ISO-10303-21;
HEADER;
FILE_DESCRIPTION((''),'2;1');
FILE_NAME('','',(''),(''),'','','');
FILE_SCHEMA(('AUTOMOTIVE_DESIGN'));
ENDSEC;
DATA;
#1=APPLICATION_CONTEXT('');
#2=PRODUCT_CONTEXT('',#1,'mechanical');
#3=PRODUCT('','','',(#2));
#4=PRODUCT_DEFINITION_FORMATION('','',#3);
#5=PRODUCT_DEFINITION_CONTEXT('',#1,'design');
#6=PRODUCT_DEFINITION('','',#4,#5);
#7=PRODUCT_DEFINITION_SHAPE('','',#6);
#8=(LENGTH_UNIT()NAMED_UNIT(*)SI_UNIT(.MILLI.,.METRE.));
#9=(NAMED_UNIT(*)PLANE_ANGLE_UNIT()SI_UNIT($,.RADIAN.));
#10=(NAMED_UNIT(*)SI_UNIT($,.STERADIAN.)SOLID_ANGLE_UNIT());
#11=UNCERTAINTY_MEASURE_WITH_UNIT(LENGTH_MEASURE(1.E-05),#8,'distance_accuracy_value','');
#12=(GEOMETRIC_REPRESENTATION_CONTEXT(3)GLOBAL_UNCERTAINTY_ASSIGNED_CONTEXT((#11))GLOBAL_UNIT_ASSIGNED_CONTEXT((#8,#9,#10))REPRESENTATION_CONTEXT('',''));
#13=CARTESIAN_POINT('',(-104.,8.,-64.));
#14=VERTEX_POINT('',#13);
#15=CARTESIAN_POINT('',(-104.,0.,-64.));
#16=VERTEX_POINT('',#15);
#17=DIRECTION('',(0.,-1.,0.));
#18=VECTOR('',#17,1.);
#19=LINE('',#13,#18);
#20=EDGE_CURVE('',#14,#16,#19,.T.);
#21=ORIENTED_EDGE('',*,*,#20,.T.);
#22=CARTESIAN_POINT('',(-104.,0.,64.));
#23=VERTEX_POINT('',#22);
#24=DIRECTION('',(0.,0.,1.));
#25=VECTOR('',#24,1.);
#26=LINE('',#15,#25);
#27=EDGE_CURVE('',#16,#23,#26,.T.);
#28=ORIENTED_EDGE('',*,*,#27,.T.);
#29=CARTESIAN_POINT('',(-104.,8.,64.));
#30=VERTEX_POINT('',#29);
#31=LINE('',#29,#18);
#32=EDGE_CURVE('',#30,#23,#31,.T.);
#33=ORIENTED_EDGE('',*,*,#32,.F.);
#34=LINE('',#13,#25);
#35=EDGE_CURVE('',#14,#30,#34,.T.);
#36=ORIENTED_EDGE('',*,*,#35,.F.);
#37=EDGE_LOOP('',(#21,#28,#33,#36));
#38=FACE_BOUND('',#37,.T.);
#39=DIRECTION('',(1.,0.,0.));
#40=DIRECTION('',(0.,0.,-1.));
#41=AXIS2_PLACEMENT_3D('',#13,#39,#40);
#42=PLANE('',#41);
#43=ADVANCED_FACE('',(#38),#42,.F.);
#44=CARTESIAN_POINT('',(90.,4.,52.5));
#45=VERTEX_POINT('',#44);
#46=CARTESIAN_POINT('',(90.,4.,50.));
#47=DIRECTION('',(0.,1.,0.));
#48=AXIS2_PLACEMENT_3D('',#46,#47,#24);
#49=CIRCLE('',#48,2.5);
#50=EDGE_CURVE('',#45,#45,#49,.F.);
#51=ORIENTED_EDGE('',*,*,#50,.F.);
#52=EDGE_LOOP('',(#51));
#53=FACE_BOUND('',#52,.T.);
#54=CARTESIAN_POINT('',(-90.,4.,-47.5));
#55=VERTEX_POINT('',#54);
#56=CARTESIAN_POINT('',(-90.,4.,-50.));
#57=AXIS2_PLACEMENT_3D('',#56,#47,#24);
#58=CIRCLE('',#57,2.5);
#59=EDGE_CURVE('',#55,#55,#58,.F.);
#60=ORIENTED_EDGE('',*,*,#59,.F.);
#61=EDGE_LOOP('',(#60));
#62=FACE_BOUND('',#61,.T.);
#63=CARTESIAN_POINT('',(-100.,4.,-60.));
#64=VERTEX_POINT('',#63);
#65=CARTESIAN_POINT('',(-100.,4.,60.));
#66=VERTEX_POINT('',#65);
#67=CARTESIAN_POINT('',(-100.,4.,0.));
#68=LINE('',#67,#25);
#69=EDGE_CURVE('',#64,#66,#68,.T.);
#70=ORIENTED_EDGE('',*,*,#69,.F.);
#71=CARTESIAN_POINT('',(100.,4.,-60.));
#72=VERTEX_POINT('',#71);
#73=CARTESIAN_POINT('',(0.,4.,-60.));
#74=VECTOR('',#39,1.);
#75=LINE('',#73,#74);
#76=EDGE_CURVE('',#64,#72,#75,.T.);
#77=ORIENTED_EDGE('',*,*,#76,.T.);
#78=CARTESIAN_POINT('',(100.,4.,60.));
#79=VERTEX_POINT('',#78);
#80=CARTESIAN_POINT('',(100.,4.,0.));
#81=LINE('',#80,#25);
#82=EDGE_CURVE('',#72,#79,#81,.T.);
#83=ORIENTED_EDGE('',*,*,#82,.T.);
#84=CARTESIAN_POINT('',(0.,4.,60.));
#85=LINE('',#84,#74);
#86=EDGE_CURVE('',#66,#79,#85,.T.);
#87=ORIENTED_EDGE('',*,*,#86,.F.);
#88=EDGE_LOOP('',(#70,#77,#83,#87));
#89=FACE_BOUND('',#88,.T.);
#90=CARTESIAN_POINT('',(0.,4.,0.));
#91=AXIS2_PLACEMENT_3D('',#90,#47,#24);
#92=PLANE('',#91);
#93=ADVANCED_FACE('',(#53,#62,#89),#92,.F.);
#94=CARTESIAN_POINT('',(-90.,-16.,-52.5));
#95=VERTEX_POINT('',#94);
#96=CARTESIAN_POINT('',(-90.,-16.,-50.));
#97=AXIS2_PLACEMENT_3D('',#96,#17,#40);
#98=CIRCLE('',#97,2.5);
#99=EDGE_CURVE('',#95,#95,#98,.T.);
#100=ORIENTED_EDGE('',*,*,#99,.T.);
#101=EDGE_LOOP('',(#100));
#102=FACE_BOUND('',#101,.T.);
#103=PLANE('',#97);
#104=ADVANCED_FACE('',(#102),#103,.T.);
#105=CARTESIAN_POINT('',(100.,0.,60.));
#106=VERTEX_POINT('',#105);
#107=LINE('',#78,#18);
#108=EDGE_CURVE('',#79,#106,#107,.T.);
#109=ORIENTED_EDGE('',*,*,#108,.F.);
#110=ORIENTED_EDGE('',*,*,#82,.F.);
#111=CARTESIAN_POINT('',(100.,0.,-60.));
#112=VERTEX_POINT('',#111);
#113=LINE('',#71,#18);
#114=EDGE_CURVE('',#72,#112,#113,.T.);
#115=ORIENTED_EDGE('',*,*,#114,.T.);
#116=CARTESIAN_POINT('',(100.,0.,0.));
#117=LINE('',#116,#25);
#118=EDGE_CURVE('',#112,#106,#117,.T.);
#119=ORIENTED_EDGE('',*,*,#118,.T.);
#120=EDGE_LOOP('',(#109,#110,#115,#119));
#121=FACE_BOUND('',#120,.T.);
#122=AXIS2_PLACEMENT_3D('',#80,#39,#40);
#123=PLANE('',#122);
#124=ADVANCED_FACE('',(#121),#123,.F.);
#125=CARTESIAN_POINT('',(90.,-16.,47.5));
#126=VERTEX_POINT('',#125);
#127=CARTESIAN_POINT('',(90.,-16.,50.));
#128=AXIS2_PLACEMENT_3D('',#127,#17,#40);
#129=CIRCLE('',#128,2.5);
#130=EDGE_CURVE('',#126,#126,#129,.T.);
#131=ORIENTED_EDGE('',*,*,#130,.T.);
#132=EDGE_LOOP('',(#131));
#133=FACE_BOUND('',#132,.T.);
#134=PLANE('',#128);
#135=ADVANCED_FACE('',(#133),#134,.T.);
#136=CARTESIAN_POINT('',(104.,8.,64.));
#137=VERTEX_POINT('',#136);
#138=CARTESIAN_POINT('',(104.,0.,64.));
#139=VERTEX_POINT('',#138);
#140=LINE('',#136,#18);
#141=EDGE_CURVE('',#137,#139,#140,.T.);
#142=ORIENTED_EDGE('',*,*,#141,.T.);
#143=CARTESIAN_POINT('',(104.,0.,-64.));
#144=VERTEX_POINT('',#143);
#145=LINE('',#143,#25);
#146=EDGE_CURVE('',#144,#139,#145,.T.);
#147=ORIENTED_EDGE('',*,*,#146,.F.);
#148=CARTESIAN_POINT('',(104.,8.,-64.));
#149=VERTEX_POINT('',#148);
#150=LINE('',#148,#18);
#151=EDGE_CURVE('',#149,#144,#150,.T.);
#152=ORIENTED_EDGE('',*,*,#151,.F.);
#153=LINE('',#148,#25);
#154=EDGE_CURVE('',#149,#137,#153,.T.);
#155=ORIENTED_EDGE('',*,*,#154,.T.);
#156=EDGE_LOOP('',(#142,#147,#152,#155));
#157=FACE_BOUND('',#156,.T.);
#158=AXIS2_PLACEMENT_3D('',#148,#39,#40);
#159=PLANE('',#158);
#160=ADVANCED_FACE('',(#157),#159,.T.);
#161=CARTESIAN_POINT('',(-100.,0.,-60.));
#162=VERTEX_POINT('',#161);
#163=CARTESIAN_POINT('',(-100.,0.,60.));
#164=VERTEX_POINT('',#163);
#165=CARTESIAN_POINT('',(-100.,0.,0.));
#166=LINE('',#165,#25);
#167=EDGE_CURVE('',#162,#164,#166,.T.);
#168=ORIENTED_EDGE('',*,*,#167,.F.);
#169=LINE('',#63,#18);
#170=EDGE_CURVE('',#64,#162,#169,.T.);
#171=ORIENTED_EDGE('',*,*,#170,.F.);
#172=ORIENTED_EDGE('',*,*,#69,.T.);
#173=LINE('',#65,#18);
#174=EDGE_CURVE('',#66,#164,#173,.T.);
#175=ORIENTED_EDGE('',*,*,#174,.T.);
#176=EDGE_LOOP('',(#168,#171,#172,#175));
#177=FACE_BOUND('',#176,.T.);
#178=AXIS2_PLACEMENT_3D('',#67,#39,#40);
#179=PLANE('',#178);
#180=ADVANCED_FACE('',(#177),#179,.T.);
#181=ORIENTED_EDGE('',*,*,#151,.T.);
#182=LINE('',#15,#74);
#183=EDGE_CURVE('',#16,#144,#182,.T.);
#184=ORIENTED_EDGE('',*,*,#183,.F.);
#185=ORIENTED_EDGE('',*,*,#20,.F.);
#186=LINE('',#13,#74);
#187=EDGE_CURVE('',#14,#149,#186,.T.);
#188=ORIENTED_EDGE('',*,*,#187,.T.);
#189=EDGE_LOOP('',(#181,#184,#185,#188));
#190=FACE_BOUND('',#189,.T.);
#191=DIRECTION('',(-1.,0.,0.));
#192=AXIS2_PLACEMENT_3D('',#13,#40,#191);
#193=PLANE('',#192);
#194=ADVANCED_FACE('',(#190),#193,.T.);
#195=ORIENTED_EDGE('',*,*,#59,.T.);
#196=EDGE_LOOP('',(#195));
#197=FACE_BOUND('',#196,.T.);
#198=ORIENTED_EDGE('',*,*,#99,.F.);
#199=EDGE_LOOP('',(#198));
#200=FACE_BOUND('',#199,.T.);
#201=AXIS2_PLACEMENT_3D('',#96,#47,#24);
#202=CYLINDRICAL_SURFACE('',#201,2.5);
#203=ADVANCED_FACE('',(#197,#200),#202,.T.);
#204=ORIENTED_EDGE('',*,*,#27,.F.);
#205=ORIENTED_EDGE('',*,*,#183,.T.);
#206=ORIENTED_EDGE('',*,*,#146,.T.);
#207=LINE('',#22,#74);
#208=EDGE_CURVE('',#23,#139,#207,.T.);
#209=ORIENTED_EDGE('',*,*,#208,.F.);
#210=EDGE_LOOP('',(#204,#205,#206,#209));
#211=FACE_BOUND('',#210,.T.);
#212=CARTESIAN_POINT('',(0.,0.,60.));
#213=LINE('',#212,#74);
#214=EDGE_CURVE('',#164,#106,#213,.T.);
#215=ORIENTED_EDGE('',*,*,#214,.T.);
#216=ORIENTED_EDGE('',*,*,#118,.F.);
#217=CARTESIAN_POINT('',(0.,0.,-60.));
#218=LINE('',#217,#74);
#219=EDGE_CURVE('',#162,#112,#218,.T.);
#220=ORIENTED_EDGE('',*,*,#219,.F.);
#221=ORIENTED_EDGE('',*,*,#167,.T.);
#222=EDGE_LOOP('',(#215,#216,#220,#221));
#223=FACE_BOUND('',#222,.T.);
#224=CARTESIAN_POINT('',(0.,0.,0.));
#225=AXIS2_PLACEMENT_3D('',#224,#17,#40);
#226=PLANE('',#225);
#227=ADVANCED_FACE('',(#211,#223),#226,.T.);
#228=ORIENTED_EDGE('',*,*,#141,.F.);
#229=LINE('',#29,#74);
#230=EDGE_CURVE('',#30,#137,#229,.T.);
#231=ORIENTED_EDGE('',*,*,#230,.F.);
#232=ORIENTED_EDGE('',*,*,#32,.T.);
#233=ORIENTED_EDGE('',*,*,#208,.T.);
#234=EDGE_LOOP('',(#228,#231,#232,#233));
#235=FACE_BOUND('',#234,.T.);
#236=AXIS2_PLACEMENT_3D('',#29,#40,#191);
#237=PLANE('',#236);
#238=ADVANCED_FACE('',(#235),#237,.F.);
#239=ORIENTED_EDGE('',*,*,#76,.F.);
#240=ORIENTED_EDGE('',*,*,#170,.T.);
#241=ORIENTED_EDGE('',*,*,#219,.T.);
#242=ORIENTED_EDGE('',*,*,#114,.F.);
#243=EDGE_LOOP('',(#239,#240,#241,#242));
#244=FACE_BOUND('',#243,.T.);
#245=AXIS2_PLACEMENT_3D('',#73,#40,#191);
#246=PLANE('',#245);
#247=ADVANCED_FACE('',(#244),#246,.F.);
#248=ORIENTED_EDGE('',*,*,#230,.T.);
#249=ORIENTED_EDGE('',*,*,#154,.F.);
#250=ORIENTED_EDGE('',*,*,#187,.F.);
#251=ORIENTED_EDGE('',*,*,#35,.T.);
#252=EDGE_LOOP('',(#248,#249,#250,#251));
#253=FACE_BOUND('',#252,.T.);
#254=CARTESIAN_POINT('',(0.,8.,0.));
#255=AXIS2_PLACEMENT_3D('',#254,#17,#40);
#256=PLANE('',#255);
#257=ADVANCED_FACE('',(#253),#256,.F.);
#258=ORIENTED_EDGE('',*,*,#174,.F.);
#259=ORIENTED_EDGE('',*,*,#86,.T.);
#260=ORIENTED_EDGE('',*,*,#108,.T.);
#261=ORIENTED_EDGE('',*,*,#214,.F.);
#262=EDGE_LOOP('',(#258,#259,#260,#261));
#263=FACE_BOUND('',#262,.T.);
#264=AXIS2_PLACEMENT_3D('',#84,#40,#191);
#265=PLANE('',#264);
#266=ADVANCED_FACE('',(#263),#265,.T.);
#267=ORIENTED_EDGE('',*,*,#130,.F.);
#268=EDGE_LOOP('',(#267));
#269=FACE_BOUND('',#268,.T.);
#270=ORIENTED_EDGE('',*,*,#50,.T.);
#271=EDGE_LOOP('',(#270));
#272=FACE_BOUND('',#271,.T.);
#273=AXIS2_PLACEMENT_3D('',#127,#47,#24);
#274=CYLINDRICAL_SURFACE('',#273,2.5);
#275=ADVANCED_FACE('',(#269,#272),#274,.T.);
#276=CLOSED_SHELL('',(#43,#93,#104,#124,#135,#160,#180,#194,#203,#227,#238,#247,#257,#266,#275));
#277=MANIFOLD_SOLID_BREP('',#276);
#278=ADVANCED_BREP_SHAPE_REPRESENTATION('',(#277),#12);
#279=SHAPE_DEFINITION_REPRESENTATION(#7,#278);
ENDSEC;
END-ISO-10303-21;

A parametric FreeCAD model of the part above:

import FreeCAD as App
import Part
import Sketcher
Q = App.Units.Quantity


def add_polygon(sketch, points):
    """Adds a closed chain of lines whose ends are joined by coincident constraints."""
    first, n = sketch.GeometryCount, len(points)
    for a, b in zip(points, points[1:] + points[:1]):
        sketch.addGeometry(Part.LineSegment(App.Vector(*a, 0), App.Vector(*b, 0)), False)
    for i in range(n):
        sketch.addConstraint(Sketcher.Constraint("Coincident", first + i, 2, first + (i + 1) % n, 1))

doc = App.newDocument("Part")
body = doc.addObject("PartDesign::Body", "Body")

sketch1 = doc.addObject("Sketcher::SketchObject", "Sketch")
body.addObject(sketch1)
sketch1.AttachmentSupport = (doc.XZ_Plane, [""])
sketch1.MapMode = "FlatFace"
add_polygon(sketch1, [(-104, -64), (-104, 64), (104, 64), (104, -64)])
sketch1.addConstraint([
    Sketcher.Constraint("Vertical", 0),
    Sketcher.Constraint("Horizontal", 1),
    Sketcher.Constraint("Vertical", 2),
    Sketcher.Constraint("Horizontal", 3),
    Sketcher.Constraint("Symmetric", 0, 2, 2, 2, -1, 1),
    Sketcher.Constraint("DistanceX", 1, 1, 1, 2, Q("208 mm")),
    Sketcher.Constraint("DistanceY", 0, 1, 0, 2, Q("128 mm")),
])
pad1 = doc.addObject("PartDesign::Pad", "Pad")
body.addObject(pad1)
pad1.Profile = sketch1
pad1.Length = 8
pad1.Reversed = True

sketch2 = doc.addObject("Sketcher::SketchObject", "Sketch001")
body.addObject(sketch2)
sketch2.AttachmentSupport = (doc.XZ_Plane, [""])
sketch2.MapMode = "FlatFace"
add_polygon(sketch2, [(-100, -60), (-100, 60), (100, 60), (100, -60)])
sketch2.addConstraint([
    Sketcher.Constraint("Vertical", 0),
    Sketcher.Constraint("Horizontal", 1),
    Sketcher.Constraint("Vertical", 2),
    Sketcher.Constraint("Horizontal", 3),
    Sketcher.Constraint("Symmetric", 0, 2, 2, 2, -1, 1),
    Sketcher.Constraint("DistanceX", 1, 1, 1, 2, Q("200 mm")),
    Sketcher.Constraint("DistanceY", 0, 1, 0, 2, Q("120 mm")),
])
pocket1 = doc.addObject("PartDesign::Pocket", "Pocket")
body.addObject(pocket1)
pocket1.Profile = sketch2
pocket1.Length = 4

sketch3 = doc.addObject("Sketcher::SketchObject", "Sketch002")
body.addObject(sketch3)
sketch3.AttachmentSupport = (doc.XZ_Plane, [""])
sketch3.MapMode = "FlatFace"
sketch3.AttachmentOffset = App.Placement(App.Vector(0, 0, -4), App.Rotation())
sketch3.addGeometry([
    Part.Circle(App.Vector(-90, -50, 0), App.Vector(0, 0, 1), 2.5),
    Part.Circle(App.Vector(90, 50, 0), App.Vector(0, 0, 1), 2.5),
], False)
sketch3.addConstraint([
    Sketcher.Constraint("Equal", 0, 1),
    Sketcher.Constraint("Symmetric", 0, 3, 1, 3, -1, 1),
    Sketcher.Constraint("Diameter", 0, Q("5 mm")),
    Sketcher.Constraint("DistanceX", 0, 3, -1, 1, Q("90 mm")),
    Sketcher.Constraint("DistanceY", 0, 3, -1, 1, Q("50 mm")),
])
pad2 = doc.addObject("PartDesign::Pad", "Pad001")
body.addObject(pad2)
pad2.Profile = sketch3
pad2.Length = 20

doc.recompute()
